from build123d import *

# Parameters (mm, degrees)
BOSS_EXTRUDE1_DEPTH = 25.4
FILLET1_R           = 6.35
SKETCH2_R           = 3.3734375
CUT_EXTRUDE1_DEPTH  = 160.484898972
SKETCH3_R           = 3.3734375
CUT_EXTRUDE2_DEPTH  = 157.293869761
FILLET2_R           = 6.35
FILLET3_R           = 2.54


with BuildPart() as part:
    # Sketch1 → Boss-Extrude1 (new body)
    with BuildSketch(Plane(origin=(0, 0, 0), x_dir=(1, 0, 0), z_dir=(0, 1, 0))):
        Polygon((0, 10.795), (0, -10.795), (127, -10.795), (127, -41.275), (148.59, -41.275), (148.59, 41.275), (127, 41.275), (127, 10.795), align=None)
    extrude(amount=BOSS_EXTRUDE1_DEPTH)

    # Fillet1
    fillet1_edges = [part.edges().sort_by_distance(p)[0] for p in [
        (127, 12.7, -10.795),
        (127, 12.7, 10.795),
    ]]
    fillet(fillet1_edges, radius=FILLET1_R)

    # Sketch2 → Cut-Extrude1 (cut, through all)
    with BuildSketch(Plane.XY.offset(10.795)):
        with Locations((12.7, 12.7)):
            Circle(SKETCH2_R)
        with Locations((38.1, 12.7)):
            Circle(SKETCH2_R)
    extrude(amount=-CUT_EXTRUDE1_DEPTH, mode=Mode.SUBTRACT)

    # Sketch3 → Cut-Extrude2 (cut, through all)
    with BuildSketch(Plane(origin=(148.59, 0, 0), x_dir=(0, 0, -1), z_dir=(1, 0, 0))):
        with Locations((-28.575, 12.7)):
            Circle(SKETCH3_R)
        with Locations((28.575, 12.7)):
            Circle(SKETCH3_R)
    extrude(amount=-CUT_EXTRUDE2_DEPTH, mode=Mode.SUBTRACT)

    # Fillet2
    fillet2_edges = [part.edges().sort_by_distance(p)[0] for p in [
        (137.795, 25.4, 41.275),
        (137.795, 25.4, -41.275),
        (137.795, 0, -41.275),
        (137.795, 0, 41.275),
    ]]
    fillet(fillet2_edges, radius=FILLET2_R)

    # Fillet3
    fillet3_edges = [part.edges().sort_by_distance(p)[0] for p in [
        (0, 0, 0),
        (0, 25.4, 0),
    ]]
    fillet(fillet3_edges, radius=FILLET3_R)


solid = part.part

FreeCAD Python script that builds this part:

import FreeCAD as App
import Part
import Sketcher
from FreeCAD import Vector
Q = App.Units.Quantity


def edges_at(feature, points):
    """Names of the edges that pass closest to the given points."""
    edges = feature.Shape.Edges
    near = lambda p: min(range(len(edges)), key=lambda i: edges[i].distToShape(Part.Vertex(*p))[0])
    return sorted({f"Edge{near(p) + 1}" for p in points})

doc = App.newDocument("Part")
params = doc.addObject("Spreadsheet::Sheet", "Params")
for row, (alias, value) in enumerate([
    ("sketch1_width", "5 in"),
    ("sketch1_height", "1.2 in"),
    ("sketch1_width2", "0.85 in"),
    ("pad1_length", "1 in"),
    ("fillet_radius", "0.25 in"),
    ("sketch2_diameter", "0.265625 in"),
    ("sketch3_diameter", "0.265625 in"),
    ("fillet2_radius", "0.25 in"),
    ("fillet3_radius", "0.1 in"),
], start=1):
    params.set(f"A{row}", alias)
    params.set(f"B{row}", "=" + value)
    params.setAlias(f"B{row}", alias)

body = doc.addObject("PartDesign::Body", "Body")

sketch1 = body.newObject("Sketcher::SketchObject", "Sketch")
sketch1.AttachmentSupport = (doc.getObject("XZ_Plane"), [""])
sketch1.MapMode = "FlatFace"
sketch1.addGeometry(Part.LineSegment(Vector(0, -10.795, 0), Vector(0, 10.795, 0)), False)
sketch1.addGeometry(Part.LineSegment(Vector(0, 10.795, 0), Vector(127, 10.795, 0)), False)
sketch1.addGeometry(Part.LineSegment(Vector(127, 10.795, 0), Vector(127, 41.275, 0)), False)
sketch1.addGeometry(Part.LineSegment(Vector(127, 41.275, 0), Vector(148.59, 41.275, 0)), False)
sketch1.addGeometry(Part.LineSegment(Vector(148.59, 41.275, 0), Vector(148.59, -41.275, 0)), False)
sketch1.addGeometry(Part.LineSegment(Vector(148.59, -41.275, 0), Vector(127, -41.275, 0)), False)
sketch1.addGeometry(Part.LineSegment(Vector(127, -41.275, 0), Vector(127, -10.795, 0)), False)
sketch1.addGeometry(Part.LineSegment(Vector(127, -10.795, 0), Vector(0, -10.795, 0)), False)
sketch1.addConstraint(Sketcher.Constraint("Coincident", 0, 2, 1, 1))
sketch1.addConstraint(Sketcher.Constraint("Coincident", 1, 2, 2, 1))
sketch1.addConstraint(Sketcher.Constraint("Coincident", 2, 2, 3, 1))
sketch1.addConstraint(Sketcher.Constraint("Coincident", 3, 2, 4, 1))
sketch1.addConstraint(Sketcher.Constraint("Coincident", 4, 2, 5, 1))
sketch1.addConstraint(Sketcher.Constraint("Coincident", 5, 2, 6, 1))
sketch1.addConstraint(Sketcher.Constraint("Coincident", 6, 2, 7, 1))
sketch1.addConstraint(Sketcher.Constraint("Coincident", 7, 2, 0, 1))
sketch1.addConstraint(Sketcher.Constraint("Vertical", 0))
sketch1.addConstraint(Sketcher.Constraint("Horizontal", 1))
sketch1.addConstraint(Sketcher.Constraint("Vertical", 2))
sketch1.addConstraint(Sketcher.Constraint("Horizontal", 3))
sketch1.addConstraint(Sketcher.Constraint("Vertical", 4))
sketch1.addConstraint(Sketcher.Constraint("Horizontal", 5))
sketch1.addConstraint(Sketcher.Constraint("Vertical", 6))
sketch1.addConstraint(Sketcher.Constraint("Horizontal", 7))
sketch1.addConstraint(Sketcher.Constraint("Symmetric", 0, 2, 7, 2, -1, 1))
sketch1.addConstraint(Sketcher.Constraint("Symmetric", 2, 2, 5, 2, -1))
sketch1.addConstraint(Sketcher.Constraint("Equal", 5, 0))
sketch1.addConstraint(Sketcher.Constraint("DistanceX", 1, 1, 1, 2, Q("5 in")))
sketch1.addConstraint(Sketcher.Constraint("DistanceY", 2, 1, 2, 2, Q("1.2 in")))
sketch1.addConstraint(Sketcher.Constraint("DistanceX", 3, 1, 3, 2, Q("0.85 in")))
sketch1.setExpression("Constraints[19]", "Params.sketch1_width")
sketch1.setExpression("Constraints[20]", "Params.sketch1_height")
sketch1.setExpression("Constraints[21]", "Params.sketch1_width2")
pad1 = body.newObject("PartDesign::Pad", "Pad")
pad1.Profile = sketch1
pad1.setExpression("Length", "Params.pad1_length")
pad1.Reversed = True
doc.recompute()

fillet = body.newObject("PartDesign::Fillet", "Fillet")
fillet.Base = (pad1, edges_at(pad1, [(127, 12.7, -10.795), (127, 12.7, 10.795)]))
fillet.setExpression("Radius", "Params.fillet_radius")

sketch2 = body.newObject("Sketcher::SketchObject", "Sketch001")
sketch2.AttachmentSupport = (doc.getObject("XY_Plane"), [""])
sketch2.MapMode = "FlatFace"
sketch2.AttachmentOffset = App.Placement(Vector(0, 0, 0.425 * 25.4), App.Rotation())
sketch2.addGeometry(Part.Circle(Vector(12.7, 12.7, 0), Vector(0, 0, 1), 3.373438), False)
sketch2.addGeometry(Part.Circle(Vector(38.1, 12.7, 0), Vector(0, 0, 1), 3.373438), False)
sketch2.addConstraint(Sketcher.Constraint("Equal", 0, 1))
sketch2.addConstraint(Sketcher.Constraint("Horizontal", 0, 3, 1, 3))
sketch2.addConstraint(Sketcher.Constraint("Diameter", 0, Q("0.265625 in")))
sketch2.addConstraint(Sketcher.Constraint("DistanceX", 0, 3, 1, 3, Q("1 in")))
sketch2.addConstraint(Sketcher.Constraint("DistanceX", -1, 1, 0, 3, Q("0.5 in")))
sketch2.addConstraint(Sketcher.Constraint("DistanceY", -1, 1, 0, 3, Q("0.5 in")))
sketch2.setExpression("Constraints[2]", "Params.sketch2_diameter")
pocket1 = body.newObject("PartDesign::Pocket", "Pocket")
pocket1.Profile = sketch2
pocket1.Type = "ThroughAll"

sketch3 = body.newObject("Sketcher::SketchObject", "Sketch002")
sketch3.AttachmentSupport = (doc.getObject("YZ_Plane"), [""])
sketch3.MapMode = "FlatFace"
sketch3.AttachmentOffset = App.Placement(Vector(0, 0, 5.85 * 25.4), App.Rotation())
sketch3.addGeometry(Part.Circle(Vector(12.7, 28.575, 0), Vector(0, 0, 1), 3.373438), False)
sketch3.addGeometry(Part.Circle(Vector(12.7, -28.575, 0), Vector(0, 0, 1), 3.373438), False)
sketch3.addConstraint(Sketcher.Constraint("Equal", 0, 1))
sketch3.addConstraint(Sketcher.Constraint("Symmetric", 0, 3, 1, 3, -1))
sketch3.addConstraint(Sketcher.Constraint("Diameter", 0, Q("0.265625 in")))
sketch3.addConstraint(Sketcher.Constraint("DistanceX", -1, 1, 0, 3, Q("0.5 in")))
sketch3.addConstraint(Sketcher.Constraint("DistanceY", 1, 3, 0, 3, Q("2.25 in")))
sketch3.setExpression("Constraints[2]", "Params.sketch3_diameter")
pocket2 = body.newObject("PartDesign::Pocket", "Pocket001")
pocket2.Profile = sketch3
pocket2.Type = "ThroughAll"
doc.recompute()

fillet2 = body.newObject("PartDesign::Fillet", "Fillet001")
fillet2.Base = (pocket2, edges_at(pocket2, [
    (137.795, 25.4, 41.275),
    (137.795, 25.4, -41.275),
    (137.795, 0, -41.275),
    (137.795, 0, 41.275),
]))
fillet2.setExpression("Radius", "Params.fillet2_radius")
doc.recompute()

fillet3 = body.newObject("PartDesign::Fillet", "Fillet002")
fillet3.Base = (fillet2, edges_at(fillet2, [(0, 0, 0), (0, 25.4, 0)]))
fillet3.setExpression("Radius", "Params.fillet3_radius")

doc.recompute()
